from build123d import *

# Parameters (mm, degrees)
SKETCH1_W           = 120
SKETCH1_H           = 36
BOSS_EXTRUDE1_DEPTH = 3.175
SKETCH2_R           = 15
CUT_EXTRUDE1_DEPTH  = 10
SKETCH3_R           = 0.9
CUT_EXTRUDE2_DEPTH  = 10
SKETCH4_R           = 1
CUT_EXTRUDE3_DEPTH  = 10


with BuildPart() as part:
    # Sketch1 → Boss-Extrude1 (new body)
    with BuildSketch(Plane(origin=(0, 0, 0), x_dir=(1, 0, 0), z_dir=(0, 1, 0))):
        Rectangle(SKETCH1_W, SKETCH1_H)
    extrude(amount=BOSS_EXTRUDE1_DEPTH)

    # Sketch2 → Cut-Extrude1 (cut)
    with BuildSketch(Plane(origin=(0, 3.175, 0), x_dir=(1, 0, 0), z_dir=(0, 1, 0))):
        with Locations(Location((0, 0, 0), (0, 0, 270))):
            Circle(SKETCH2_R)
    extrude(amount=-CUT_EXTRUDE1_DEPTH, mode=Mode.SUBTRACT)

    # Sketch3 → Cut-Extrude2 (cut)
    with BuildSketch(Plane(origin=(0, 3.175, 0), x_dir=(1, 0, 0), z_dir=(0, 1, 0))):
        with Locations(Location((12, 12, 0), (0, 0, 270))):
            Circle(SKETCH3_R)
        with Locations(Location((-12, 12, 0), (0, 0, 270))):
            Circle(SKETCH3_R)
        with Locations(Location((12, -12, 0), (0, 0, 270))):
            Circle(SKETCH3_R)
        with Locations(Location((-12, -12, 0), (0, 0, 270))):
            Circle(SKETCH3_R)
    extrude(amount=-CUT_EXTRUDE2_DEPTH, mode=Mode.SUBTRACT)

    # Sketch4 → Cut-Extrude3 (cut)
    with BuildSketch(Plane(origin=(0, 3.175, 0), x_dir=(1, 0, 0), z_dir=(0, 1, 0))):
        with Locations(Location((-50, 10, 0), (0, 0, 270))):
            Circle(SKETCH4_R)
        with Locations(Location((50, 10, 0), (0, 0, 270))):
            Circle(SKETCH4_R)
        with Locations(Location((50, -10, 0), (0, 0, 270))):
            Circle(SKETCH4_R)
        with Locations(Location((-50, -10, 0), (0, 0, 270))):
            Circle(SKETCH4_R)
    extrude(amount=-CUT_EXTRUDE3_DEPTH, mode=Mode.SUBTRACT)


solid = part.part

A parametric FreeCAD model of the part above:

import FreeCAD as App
import Part
import Sketcher

doc = App.newDocument("Part")
body = doc.addObject("PartDesign::Body", "Body")

# Sketch on XZ plane
sketch1 = body.newObject("Sketcher::SketchObject", "Sketch")
sketch1.AttachmentSupport = (doc.getObject("XZ_Plane"), [""])
sketch1.MapMode = "FlatFace"
sketch1.addGeometry(Part.LineSegment(App.Vector(-60, -18, 0), App.Vector(-60, 18, 0)), False)
sketch1.addGeometry(Part.LineSegment(App.Vector(-60, 18, 0), App.Vector(60, 18, 0)), False)
sketch1.addGeometry(Part.LineSegment(App.Vector(60, 18, 0), App.Vector(60, -18, 0)), False)
sketch1.addGeometry(Part.LineSegment(App.Vector(60, -18, 0), App.Vector(-60, -18, 0)), False)
sketch1.addConstraint(Sketcher.Constraint("Coincident", 0, 2, 1, 1))
sketch1.addConstraint(Sketcher.Constraint("Coincident", 1, 2, 2, 1))
sketch1.addConstraint(Sketcher.Constraint("Coincident", 2, 2, 3, 1))
sketch1.addConstraint(Sketcher.Constraint("Coincident", 3, 2, 0, 1))
sketch1.addConstraint(Sketcher.Constraint("Vertical", 0))
sketch1.addConstraint(Sketcher.Constraint("Horizontal", 1))
sketch1.addConstraint(Sketcher.Constraint("Vertical", 2))
sketch1.addConstraint(Sketcher.Constraint("Horizontal", 3))
sketch1.addConstraint(Sketcher.Constraint("Symmetric", 0, 2, 2, 2, -1, 1))
sketch1.addConstraint(Sketcher.Constraint("DistanceX", 1, 1, 1, 2, 120.0))
sketch1.addConstraint(Sketcher.Constraint("DistanceY", 0, 1, 0, 2, 36.0))
pad1 = body.newObject("PartDesign::Pad", "Pad")
pad1.Profile = sketch1
pad1.Length = 3.175
pad1.Reversed = True

# Sketch on XZ plane
sketch2 = body.newObject("Sketcher::SketchObject", "Sketch001")
sketch2.AttachmentSupport = (doc.getObject("XZ_Plane"), [""])
sketch2.MapMode = "FlatFace"
sketch2.AttachmentOffset = App.Placement(App.Vector(0, 0, -3.175), App.Rotation())
sketch2.addGeometry(Part.Circle(App.Vector(0, 0, 0), App.Vector(0, 0, 1), 15), False)
sketch2.addConstraint(Sketcher.Constraint("Coincident", 0, 3, -1, 1))
sketch2.addConstraint(Sketcher.Constraint("Diameter", 0, 30.0))
pocket1 = body.newObject("PartDesign::Pocket", "Pocket")
pocket1.Profile = sketch2
pocket1.Length = 10
pocket1.Reversed = True

# Sketch on XZ plane
sketch3 = body.newObject("Sketcher::SketchObject", "Sketch002")
sketch3.AttachmentSupport = (doc.getObject("XZ_Plane"), [""])
sketch3.MapMode = "FlatFace"
sketch3.AttachmentOffset = App.Placement(App.Vector(0, 0, -3.175), App.Rotation())
sketch3.addGeometry(Part.Circle(App.Vector(12, -12, 0), App.Vector(0, 0, 1), 0.9), False)
sketch3.addGeometry(Part.Circle(App.Vector(-12, -12, 0), App.Vector(0, 0, 1), 0.9), False)
sketch3.addGeometry(Part.Circle(App.Vector(12, 12, 0), App.Vector(0, 0, 1), 0.9), False)
sketch3.addGeometry(Part.Circle(App.Vector(-12, 12, 0), App.Vector(0, 0, 1), 0.9), False)
sketch3.addConstraint(Sketcher.Constraint("Equal", 0, 1))
sketch3.addConstraint(Sketcher.Constraint("Equal", 1, 2))
sketch3.addConstraint(Sketcher.Constraint("Equal", 2, 3))
sketch3.addConstraint(Sketcher.Constraint("Symmetric", 1, 3, 2, 3, -1, 1))
sketch3.addConstraint(Sketcher.Constraint("Symmetric", 0, 3, 3, 3, -1, 1))
sketch3.addConstraint(Sketcher.Constraint("Symmetric", 0, 3, 1, 3, -2))
sketch3.addConstraint(Sketcher.Constraint("Diameter", 0, 1.8))
sketch3.addConstraint(Sketcher.Constraint("DistanceX", -1, 1, 0, 3, 12.0))
sketch3.addConstraint(Sketcher.Constraint("DistanceY", 0, 3, -1, 1, 12.0))
pocket2 = body.newObject("PartDesign::Pocket", "Pocket001")
pocket2.Profile = sketch3
pocket2.Length = 10
pocket2.Reversed = True

# Sketch on XZ plane
sketch4 = body.newObject("Sketcher::SketchObject", "Sketch003")
sketch4.AttachmentSupport = (doc.getObject("XZ_Plane"), [""])
sketch4.MapMode = "FlatFace"
sketch4.AttachmentOffset = App.Placement(App.Vector(0, 0, -3.175), App.Rotation())
sketch4.addGeometry(Part.Circle(App.Vector(-50, -10, 0), App.Vector(0, 0, 1), 1), False)
sketch4.addGeometry(Part.Circle(App.Vector(50, -10, 0), App.Vector(0, 0, 1), 1), False)
sketch4.addGeometry(Part.Circle(App.Vector(50, 10, 0), App.Vector(0, 0, 1), 1), False)
sketch4.addGeometry(Part.Circle(App.Vector(-50, 10, 0), App.Vector(0, 0, 1), 1), False)
sketch4.addConstraint(Sketcher.Constraint("Equal", 0, 1))
sketch4.addConstraint(Sketcher.Constraint("Equal", 1, 2))
sketch4.addConstraint(Sketcher.Constraint("Equal", 2, 3))
sketch4.addConstraint(Sketcher.Constraint("Symmetric", 0, 3, 2, 3, -1, 1))
sketch4.addConstraint(Sketcher.Constraint("Symmetric", 1, 3, 3, 3, -1, 1))
sketch4.addConstraint(Sketcher.Constraint("Symmetric", 0, 3, 1, 3, -2))
sketch4.addConstraint(Sketcher.Constraint("Diameter", 0, 2.0))
sketch4.addConstraint(Sketcher.Constraint("DistanceX", 0, 3, -1, 1, 50.0))
sketch4.addConstraint(Sketcher.Constraint("DistanceY", 0, 3, -1, 1, 10.0))
pocket3 = body.newObject("PartDesign::Pocket", "Pocket002")
pocket3.Profile = sketch4
pocket3.Length = 10
pocket3.Reversed = True

doc.recompute()
